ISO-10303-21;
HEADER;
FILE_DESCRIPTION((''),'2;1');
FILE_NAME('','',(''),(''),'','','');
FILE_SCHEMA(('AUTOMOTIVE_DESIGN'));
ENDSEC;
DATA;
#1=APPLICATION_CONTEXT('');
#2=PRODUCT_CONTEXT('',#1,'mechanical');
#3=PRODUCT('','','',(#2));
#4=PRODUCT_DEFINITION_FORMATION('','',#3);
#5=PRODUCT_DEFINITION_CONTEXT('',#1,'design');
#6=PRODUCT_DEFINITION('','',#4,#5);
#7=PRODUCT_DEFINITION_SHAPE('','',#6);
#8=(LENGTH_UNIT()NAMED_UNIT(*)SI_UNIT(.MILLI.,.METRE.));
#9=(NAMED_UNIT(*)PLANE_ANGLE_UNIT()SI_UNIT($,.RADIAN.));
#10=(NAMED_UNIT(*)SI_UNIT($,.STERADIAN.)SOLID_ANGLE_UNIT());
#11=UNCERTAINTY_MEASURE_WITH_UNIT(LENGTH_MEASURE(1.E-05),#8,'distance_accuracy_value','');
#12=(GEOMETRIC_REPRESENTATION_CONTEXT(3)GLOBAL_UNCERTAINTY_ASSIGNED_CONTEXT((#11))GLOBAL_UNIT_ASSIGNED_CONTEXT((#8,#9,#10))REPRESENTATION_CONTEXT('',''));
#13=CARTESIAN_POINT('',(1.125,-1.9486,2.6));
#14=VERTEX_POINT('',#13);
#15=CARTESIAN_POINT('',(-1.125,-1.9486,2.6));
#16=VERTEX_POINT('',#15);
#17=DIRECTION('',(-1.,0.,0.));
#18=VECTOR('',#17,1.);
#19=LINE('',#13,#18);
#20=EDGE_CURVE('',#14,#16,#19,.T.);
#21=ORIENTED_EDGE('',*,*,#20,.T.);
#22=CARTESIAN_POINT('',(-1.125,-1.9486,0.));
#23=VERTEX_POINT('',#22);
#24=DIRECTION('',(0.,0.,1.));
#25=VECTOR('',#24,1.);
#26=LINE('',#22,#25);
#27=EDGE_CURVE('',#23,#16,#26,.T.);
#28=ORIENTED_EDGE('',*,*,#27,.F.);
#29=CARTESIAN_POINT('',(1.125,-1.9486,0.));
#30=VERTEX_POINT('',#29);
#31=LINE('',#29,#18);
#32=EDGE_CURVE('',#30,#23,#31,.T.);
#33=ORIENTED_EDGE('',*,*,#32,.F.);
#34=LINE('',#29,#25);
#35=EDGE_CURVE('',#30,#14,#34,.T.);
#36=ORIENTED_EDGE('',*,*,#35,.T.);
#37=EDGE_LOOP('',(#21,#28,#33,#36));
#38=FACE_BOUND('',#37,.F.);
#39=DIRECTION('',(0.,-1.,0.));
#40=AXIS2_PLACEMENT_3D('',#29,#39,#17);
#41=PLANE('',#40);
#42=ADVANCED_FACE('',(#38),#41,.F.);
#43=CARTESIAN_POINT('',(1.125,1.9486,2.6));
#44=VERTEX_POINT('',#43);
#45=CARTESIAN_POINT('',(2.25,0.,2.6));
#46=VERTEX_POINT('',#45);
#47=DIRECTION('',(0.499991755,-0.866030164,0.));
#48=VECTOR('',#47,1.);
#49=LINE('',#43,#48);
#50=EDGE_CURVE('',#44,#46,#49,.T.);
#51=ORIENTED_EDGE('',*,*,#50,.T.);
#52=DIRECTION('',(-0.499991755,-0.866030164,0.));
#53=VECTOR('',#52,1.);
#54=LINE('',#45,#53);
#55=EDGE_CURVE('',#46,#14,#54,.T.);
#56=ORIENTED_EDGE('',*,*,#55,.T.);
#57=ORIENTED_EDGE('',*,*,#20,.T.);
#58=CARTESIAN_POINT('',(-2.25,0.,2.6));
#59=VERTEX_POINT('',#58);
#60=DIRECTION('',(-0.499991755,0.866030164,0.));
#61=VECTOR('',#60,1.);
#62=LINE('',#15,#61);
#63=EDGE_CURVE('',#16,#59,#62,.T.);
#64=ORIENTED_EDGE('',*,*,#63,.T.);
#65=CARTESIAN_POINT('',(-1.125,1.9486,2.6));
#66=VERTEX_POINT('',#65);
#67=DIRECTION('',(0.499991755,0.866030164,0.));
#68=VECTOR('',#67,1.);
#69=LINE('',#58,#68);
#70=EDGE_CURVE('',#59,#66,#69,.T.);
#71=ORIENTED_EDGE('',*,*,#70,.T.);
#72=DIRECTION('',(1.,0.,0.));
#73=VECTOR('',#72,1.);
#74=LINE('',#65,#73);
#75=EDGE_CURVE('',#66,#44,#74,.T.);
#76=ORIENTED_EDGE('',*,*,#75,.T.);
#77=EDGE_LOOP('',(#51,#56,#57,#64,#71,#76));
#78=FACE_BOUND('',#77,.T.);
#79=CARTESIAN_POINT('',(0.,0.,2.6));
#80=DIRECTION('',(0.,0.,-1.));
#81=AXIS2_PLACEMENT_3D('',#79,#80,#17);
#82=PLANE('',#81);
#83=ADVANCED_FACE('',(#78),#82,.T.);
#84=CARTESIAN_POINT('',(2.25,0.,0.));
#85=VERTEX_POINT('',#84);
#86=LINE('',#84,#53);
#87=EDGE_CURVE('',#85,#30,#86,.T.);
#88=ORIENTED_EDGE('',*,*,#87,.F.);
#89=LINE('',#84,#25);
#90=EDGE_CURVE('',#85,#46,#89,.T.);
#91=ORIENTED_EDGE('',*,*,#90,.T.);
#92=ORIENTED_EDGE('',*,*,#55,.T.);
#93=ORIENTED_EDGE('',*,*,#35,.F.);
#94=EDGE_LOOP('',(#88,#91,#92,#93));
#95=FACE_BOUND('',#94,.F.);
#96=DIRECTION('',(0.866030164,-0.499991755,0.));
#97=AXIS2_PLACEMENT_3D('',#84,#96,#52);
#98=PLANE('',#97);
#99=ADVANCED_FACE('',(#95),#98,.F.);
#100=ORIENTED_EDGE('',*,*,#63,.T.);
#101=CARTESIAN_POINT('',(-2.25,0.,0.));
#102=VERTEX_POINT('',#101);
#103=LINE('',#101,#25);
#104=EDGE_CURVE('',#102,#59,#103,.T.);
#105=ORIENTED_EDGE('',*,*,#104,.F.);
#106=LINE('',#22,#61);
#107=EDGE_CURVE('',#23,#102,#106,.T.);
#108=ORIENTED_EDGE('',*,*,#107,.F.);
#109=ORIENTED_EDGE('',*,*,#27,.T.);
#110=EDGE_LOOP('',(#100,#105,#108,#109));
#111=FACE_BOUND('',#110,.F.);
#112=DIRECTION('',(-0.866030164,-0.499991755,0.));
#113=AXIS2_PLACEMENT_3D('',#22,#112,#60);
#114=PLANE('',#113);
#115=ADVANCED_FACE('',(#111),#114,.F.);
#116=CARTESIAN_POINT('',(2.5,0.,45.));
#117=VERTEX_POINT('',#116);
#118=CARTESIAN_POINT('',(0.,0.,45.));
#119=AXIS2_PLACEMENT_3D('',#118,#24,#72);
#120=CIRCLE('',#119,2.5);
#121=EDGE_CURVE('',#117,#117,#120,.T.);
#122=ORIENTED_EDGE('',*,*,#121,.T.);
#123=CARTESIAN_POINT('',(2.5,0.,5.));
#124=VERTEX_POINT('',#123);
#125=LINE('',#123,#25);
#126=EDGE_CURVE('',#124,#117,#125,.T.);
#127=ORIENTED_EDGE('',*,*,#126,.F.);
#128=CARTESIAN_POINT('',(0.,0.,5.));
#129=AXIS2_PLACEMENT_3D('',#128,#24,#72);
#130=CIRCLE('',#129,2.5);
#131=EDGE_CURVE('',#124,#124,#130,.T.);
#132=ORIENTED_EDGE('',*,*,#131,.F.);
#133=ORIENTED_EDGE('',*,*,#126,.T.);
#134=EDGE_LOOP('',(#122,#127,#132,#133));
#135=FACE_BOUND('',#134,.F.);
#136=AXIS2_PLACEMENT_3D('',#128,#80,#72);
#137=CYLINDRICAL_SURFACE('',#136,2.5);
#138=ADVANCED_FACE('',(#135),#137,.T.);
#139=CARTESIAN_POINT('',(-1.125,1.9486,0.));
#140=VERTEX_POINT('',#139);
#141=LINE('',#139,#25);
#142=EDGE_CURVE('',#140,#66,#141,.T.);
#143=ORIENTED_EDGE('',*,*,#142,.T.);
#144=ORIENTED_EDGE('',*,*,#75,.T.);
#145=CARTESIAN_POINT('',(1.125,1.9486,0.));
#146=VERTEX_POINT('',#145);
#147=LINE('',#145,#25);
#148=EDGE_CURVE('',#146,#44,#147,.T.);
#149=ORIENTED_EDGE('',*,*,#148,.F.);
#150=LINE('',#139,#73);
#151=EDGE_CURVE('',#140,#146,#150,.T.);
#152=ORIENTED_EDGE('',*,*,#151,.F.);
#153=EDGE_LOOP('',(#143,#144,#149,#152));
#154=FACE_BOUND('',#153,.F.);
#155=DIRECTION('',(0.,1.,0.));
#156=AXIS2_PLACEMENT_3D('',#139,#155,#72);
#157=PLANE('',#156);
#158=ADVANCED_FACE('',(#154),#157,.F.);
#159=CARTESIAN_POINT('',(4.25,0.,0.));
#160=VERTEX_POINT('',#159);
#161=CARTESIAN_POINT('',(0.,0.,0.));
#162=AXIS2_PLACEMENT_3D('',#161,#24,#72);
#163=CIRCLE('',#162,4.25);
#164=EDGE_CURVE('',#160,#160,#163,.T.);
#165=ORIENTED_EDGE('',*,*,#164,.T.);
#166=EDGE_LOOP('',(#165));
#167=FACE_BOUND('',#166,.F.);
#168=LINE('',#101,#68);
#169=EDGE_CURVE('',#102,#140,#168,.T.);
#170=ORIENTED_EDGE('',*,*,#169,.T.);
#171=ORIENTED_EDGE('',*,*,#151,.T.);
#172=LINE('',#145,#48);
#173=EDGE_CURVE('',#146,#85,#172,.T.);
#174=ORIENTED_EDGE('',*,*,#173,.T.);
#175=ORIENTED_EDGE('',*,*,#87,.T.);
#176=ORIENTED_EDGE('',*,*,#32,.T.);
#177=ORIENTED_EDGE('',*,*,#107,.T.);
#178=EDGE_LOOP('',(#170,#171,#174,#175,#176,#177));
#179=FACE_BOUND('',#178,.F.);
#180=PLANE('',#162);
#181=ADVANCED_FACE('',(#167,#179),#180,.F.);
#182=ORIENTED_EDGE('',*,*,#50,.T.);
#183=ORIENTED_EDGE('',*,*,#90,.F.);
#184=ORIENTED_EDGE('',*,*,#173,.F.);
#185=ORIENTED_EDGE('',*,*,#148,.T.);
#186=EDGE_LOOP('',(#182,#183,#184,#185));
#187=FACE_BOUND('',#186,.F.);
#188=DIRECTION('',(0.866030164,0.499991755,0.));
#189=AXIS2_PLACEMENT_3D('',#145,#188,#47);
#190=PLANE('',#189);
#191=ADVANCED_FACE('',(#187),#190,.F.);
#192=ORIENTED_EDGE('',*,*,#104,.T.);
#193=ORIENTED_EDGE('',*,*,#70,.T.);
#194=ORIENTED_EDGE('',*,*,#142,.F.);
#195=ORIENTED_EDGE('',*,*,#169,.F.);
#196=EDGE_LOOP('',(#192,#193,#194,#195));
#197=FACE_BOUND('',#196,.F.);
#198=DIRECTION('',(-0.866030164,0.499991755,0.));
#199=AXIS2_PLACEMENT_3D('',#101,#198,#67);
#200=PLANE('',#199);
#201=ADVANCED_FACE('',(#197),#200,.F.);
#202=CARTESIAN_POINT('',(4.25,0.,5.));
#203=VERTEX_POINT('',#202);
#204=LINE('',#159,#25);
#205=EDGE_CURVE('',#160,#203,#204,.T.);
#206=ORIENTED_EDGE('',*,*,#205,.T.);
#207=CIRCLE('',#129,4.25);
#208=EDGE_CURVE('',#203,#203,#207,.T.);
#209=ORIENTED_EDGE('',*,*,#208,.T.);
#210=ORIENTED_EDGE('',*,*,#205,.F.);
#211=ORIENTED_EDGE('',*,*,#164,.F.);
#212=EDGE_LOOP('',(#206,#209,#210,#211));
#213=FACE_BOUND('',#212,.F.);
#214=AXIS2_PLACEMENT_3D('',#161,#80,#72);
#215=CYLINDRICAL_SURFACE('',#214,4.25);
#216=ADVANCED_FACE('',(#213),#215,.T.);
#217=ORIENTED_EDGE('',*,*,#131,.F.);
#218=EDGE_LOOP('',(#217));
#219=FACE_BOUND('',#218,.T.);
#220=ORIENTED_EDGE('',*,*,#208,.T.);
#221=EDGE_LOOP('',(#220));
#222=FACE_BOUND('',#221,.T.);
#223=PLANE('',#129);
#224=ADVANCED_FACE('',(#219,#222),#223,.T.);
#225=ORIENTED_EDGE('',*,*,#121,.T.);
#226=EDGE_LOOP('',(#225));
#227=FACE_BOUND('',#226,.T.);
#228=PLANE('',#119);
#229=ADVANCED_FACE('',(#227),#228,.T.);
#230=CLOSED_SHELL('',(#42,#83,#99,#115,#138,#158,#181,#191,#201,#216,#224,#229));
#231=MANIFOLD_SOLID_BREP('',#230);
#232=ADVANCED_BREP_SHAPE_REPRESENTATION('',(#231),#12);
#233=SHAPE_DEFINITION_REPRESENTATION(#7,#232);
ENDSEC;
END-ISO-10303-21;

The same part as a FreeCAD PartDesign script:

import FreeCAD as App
import Part
import Sketcher
from FreeCAD import Vector
Q = App.Units.Quantity


def add_polygon(sketch, points):
    """Adds a closed chain of lines whose ends are joined by coincident constraints."""
    first, n = sketch.GeometryCount, len(points)
    for a, b in zip(points, points[1:] + points[:1]):
        sketch.addGeometry(Part.LineSegment(App.Vector(*a, 0), App.Vector(*b, 0)), False)
    for i in range(n):
        sketch.addConstraint(Sketcher.Constraint("Coincident", first + i, 2, first + (i + 1) % n, 1))

doc = App.newDocument("Part")
body = doc.addObject("PartDesign::Body", "Body")

sketch1 = body.newObject("Sketcher::SketchObject", "Sketch")
sketch1.AttachmentSupport = (doc.getObject("XY_Plane"), [""])
sketch1.MapMode = "FlatFace"
sketch1.addGeometry(Part.Circle(Vector(0, 0, 0), Vector(0, 0, 1), 4.2), False)
sketch1.addConstraint(Sketcher.Constraint("Coincident", 0, 3, -1, 1))
sketch1.addConstraint(Sketcher.Constraint("Diameter", 0, Q("8.5 mm")))
pad1 = body.newObject("PartDesign::Pad", "Pad")
pad1.Profile = sketch1
pad1.Length = 5

sketch2 = body.newObject("Sketcher::SketchObject", "Sketch001")
sketch2.AttachmentSupport = (doc.getObject("XY_Plane"), [""])
sketch2.MapMode = "FlatFace"
sketch2.AttachmentOffset = App.Placement(Vector(0, 0, 5), App.Rotation())
sketch2.addGeometry(Part.Circle(Vector(0, 0, 0), Vector(0, 0, 1), 2.5), False)
sketch2.addConstraint(Sketcher.Constraint("Coincident", 0, 3, -1, 1))
sketch2.addConstraint(Sketcher.Constraint("Diameter", 0, Q("5 mm")))
pad2 = body.newObject("PartDesign::Pad", "Pad001")
pad2.Profile = sketch2
pad2.Length = 40

sketch3 = body.newObject("Sketcher::SketchObject", "Sketch002")
sketch3.AttachmentSupport = (doc.getObject("XY_Plane"), [""])
sketch3.MapMode = "FlatFace"
add_polygon(sketch3, [(-1.1, -1.9), (-2.2, 0), (-1.1, 1.9), (1.1, 1.9), (2.2, 0), (1.1, -1.9)])
sketch3.addConstraint(Sketcher.Constraint("Horizontal", 2))
sketch3.addConstraint(Sketcher.Constraint("Horizontal", 5))
sketch3.addConstraint(Sketcher.Constraint("Symmetric", 0, 2, 3, 2, -1, 1))
sketch3.addConstraint(Sketcher.Constraint("Symmetric", 1, 2, 4, 2, -1, 1))
sketch3.addConstraint(Sketcher.Constraint("PointOnObject", 0, 2, -1))
sketch3.addConstraint(Sketcher.Constraint("Parallel", 0, 3))
sketch3.addConstraint(Sketcher.Constraint("Vertical", 2, 2, 4, 2))
sketch3.addConstraint(Sketcher.Constraint("Angle", 0, Q("119.9995 deg")))
sketch3.addConstraint(Sketcher.Constraint("DistanceX", 2, 1, 2, 2, Q("2.25 mm")))
sketch3.addConstraint(Sketcher.Constraint("DistanceX", 0, 2, 3, 2, Q("4.5 mm")))
pocket1 = body.newObject("PartDesign::Pocket", "Pocket")
pocket1.Profile = sketch3
pocket1.Length = 2.6
pocket1.Reversed = True

doc.recompute()
